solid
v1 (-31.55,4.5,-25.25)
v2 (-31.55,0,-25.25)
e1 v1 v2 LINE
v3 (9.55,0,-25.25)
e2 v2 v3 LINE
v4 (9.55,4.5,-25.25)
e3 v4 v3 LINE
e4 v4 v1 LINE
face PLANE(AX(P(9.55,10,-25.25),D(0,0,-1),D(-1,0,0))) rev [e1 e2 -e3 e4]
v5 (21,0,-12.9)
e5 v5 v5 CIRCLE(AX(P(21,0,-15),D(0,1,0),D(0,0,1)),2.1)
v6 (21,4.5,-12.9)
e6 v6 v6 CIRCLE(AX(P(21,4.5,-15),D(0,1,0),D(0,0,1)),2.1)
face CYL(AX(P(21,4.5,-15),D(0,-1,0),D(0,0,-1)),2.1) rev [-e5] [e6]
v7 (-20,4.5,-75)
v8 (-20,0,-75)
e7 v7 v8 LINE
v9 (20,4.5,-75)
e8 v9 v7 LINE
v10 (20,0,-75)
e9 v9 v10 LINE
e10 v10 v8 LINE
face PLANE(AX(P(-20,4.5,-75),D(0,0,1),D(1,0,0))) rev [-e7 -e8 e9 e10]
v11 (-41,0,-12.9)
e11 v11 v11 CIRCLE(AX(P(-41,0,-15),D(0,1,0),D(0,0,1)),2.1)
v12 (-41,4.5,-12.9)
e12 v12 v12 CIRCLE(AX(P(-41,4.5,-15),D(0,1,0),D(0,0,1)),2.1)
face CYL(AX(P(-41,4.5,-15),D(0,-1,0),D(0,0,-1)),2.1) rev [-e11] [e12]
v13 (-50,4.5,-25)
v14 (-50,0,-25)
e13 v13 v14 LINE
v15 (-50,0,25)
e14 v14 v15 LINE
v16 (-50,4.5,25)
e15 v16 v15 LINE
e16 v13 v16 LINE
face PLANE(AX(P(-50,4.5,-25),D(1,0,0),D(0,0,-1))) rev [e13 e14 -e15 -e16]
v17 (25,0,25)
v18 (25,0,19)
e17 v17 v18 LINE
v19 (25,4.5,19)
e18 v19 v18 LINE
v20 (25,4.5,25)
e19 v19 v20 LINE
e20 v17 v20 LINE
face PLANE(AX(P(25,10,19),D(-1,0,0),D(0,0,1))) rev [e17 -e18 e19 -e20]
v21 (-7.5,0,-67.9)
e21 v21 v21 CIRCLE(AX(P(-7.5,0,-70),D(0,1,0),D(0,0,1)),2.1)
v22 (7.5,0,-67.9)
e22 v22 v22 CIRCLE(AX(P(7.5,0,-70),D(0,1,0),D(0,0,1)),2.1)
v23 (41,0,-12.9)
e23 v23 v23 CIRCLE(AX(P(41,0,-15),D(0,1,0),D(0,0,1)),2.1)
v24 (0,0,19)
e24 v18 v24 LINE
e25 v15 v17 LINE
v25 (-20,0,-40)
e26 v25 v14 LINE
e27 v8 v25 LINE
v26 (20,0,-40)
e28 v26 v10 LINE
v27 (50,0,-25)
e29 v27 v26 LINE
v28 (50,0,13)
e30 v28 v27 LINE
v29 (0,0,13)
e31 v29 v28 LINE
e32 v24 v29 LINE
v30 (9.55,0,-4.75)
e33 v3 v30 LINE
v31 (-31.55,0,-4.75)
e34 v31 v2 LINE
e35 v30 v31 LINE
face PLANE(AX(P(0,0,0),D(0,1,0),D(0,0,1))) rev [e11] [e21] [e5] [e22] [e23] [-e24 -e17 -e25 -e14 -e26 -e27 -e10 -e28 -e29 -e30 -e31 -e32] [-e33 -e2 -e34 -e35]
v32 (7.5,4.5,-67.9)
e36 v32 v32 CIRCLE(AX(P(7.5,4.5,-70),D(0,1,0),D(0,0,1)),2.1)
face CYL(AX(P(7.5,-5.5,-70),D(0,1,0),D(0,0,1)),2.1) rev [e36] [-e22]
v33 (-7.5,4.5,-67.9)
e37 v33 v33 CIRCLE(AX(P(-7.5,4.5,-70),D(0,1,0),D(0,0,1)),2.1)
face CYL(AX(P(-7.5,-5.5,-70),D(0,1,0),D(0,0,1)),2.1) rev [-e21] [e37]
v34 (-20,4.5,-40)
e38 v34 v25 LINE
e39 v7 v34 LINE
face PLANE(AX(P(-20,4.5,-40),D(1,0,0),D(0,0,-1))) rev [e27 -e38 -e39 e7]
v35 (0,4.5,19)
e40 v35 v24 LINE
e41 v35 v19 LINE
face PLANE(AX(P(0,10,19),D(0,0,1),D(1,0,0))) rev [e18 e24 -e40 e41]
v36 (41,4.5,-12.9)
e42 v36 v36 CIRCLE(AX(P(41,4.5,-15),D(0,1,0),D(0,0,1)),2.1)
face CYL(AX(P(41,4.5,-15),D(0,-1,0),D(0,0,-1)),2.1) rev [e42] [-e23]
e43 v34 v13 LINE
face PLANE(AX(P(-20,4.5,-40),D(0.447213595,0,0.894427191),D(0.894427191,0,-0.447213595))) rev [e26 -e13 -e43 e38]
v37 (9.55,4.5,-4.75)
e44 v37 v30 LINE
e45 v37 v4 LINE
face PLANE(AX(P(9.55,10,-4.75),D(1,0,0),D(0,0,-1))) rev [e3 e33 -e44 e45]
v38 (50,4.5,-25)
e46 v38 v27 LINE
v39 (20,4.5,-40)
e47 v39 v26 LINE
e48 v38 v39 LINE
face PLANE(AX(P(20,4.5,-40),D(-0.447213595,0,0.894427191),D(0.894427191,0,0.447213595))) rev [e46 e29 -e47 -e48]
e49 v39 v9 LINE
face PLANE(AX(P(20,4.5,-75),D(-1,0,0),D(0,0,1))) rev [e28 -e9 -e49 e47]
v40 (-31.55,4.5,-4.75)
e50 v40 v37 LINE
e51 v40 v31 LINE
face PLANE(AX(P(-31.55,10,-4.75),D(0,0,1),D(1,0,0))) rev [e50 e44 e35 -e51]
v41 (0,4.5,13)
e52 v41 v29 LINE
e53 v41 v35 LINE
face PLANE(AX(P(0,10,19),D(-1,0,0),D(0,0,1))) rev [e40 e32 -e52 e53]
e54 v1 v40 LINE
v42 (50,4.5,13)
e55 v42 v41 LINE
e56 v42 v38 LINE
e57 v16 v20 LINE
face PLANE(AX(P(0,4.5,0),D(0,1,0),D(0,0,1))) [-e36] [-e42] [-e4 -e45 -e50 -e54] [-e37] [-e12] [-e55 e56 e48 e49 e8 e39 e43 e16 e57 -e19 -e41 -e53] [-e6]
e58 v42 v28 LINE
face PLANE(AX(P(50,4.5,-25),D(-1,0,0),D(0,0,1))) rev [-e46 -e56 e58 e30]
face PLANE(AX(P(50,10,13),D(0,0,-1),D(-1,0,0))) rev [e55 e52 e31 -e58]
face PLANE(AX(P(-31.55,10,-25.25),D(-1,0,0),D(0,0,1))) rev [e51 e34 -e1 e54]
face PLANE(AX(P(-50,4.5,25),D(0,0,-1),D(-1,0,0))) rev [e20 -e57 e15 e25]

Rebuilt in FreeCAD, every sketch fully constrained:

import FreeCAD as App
import Part
import Sketcher
from FreeCAD import Vector

doc = App.newDocument("Part")
body = doc.addObject("PartDesign::Body", "Body")

sketch1 = body.newObject("Sketcher::SketchObject", "Sketch")
sketch1.AttachmentSupport = (doc.getObject("XZ_Plane"), [""])
sketch1.MapMode = "FlatFace"
sketch1.addGeometry([
    Part.LineSegment(Vector(50, -25, 0), Vector(20, -40, 0)),
    Part.LineSegment(Vector(20, -40, 0), Vector(20, -75, 0)),
    Part.LineSegment(Vector(20, -75, 0), Vector(-20, -75, 0)),
    Part.LineSegment(Vector(-20, -75, 0), Vector(-20, -40, 0)),
    Part.LineSegment(Vector(-20, -40, 0), Vector(-50, -25, 0)),
    Part.LineSegment(Vector(-50, -25, 0), Vector(-50, 25, 0)),
    Part.LineSegment(Vector(-50, 25, 0), Vector(50, 25, 0)),
    Part.LineSegment(Vector(50, 25, 0), Vector(50, -25, 0)),
    Part.Circle(Vector(41, -15, 0), Vector(0, 0, 1), 2.1),
    Part.Circle(Vector(21, -15, 0), Vector(0, 0, 1), 2.1),
    Part.Circle(Vector(-21, -15, 0), Vector(0, 0, 1), 2.1),
    Part.Circle(Vector(-41, -15, 0), Vector(0, 0, 1), 2.1),
], False)
sketch1.addConstraint([
    Sketcher.Constraint("Coincident", 0, 2, 1, 1),
    Sketcher.Constraint("Coincident", 1, 2, 2, 1),
    Sketcher.Constraint("Coincident", 2, 2, 3, 1),
    Sketcher.Constraint("Coincident", 3, 2, 4, 1),
    Sketcher.Constraint("Coincident", 4, 2, 5, 1),
    Sketcher.Constraint("Coincident", 5, 2, 6, 1),
    Sketcher.Constraint("Coincident", 6, 2, 7, 1),
    Sketcher.Constraint("Coincident", 7, 2, 0, 1),
    Sketcher.Constraint("Vertical", 1),
    Sketcher.Constraint("Horizontal", 2),
    Sketcher.Constraint("Vertical", 3),
    Sketcher.Constraint("Vertical", 5),
    Sketcher.Constraint("Horizontal", 6),
    Sketcher.Constraint("Vertical", 7),
    Sketcher.Constraint("Equal", 8, 9),
    Sketcher.Constraint("Equal", 9, 10),
    Sketcher.Constraint("Equal", 10, 11),
    Sketcher.Constraint("Symmetric", 4, 2, 6, 2, -1, 1),
    Sketcher.Constraint("Symmetric", 9, 3, 10, 3, -2),
    Sketcher.Constraint("Symmetric", 8, 3, 11, 3, -2),
    Sketcher.Constraint("Symmetric", 0, 2, 3, 2, -2),
    Sketcher.Constraint("Horizontal", 8, 3, 9, 3),
    Sketcher.Constraint("Horizontal", 4, 2, 7, 2),
    Sketcher.Constraint("Diameter", 8, 4.2),
    Sketcher.Constraint("DistanceX", 2, 2, 2, 1, 40.0),
    Sketcher.Constraint("DistanceX", 6, 1, 6, 2, 100.0),
    Sketcher.Constraint("DistanceY", 1, 2, 1, 1, 35.0),
    Sketcher.Constraint("DistanceY", 5, 1, 5, 2, 50.0),
    Sketcher.Constraint("DistanceX", -1, 1, 8, 3, 41.0),
    Sketcher.Constraint("DistanceY", 8, 3, -1, 1, 15.0),
    Sketcher.Constraint("DistanceX", -1, 1, 9, 3, 21.0),
    Sketcher.Constraint("DistanceY", 0, 2, -1, 1, 40.0),
])
pad1 = body.newObject("PartDesign::Pad", "Pad")
pad1.Profile = sketch1
pad1.Length = 4.5
pad1.Reversed = True

sketch2 = body.newObject("Sketcher::SketchObject", "Sketch001")
sketch2.AttachmentSupport = (doc.getObject("XZ_Plane"), [""])
sketch2.MapMode = "FlatFace"
sketch2.addGeometry([
    Part.LineSegment(Vector(-31.55, -4.75, 0), Vector(-31.55, -25.25, 0)),
    Part.LineSegment(Vector(-31.55, -25.25, 0), Vector(9.55, -25.25, 0)),
    Part.LineSegment(Vector(9.55, -25.25, 0), Vector(9.55, -4.75, 0)),
    Part.LineSegment(Vector(9.55, -4.75, 0), Vector(-31.55, -4.75, 0)),
], False)
sketch2.addConstraint([
    Sketcher.Constraint("Coincident", 0, 2, 1, 1),
    Sketcher.Constraint("Coincident", 1, 2, 2, 1),
    Sketcher.Constraint("Coincident", 2, 2, 3, 1),
    Sketcher.Constraint("Coincident", 3, 2, 0, 1),
    Sketcher.Constraint("Vertical", 0),
    Sketcher.Constraint("Horizontal", 1),
    Sketcher.Constraint("Vertical", 2),
    Sketcher.Constraint("Horizontal", 3),
    Sketcher.Constraint("DistanceX", 1, 1, 1, 2, 41.1),
    Sketcher.Constraint("DistanceY", 0, 2, 0, 1, 20.5),
    Sketcher.Constraint("DistanceX", 0, 2, -1, 1, 31.55),
    Sketcher.Constraint("DistanceY", 0, 2, -1, 1, 25.25),
])
pocket1 = body.newObject("PartDesign::Pocket", "Pocket")
pocket1.Profile = sketch2
pocket1.Length = 10

sketch3 = body.newObject("Sketcher::SketchObject", "Sketch002")
sketch3.AttachmentSupport = (doc.getObject("XZ_Plane"), [""])
sketch3.MapMode = "FlatFace"
sketch3.addGeometry([
    Part.LineSegment(Vector(25, 19, 0), Vector(0, 19, 0)),
    Part.LineSegment(Vector(0, 19, 0), Vector(0, 13, 0)),
    Part.LineSegment(Vector(0, 13, 0), Vector(50, 13, 0)),
    Part.LineSegment(Vector(50, 13, 0), Vector(50, 28.725278, 0)),
    Part.LineSegment(Vector(50, 28.725278, 0), Vector(25, 28.725278, 0)),
    Part.LineSegment(Vector(25, 28.725278, 0), Vector(25, 19, 0)),
], False)
sketch3.addConstraint([
    Sketcher.Constraint("Coincident", 0, 2, 1, 1),
    Sketcher.Constraint("Coincident", 1, 2, 2, 1),
    Sketcher.Constraint("Coincident", 2, 2, 3, 1),
    Sketcher.Constraint("Coincident", 3, 2, 4, 1),
    Sketcher.Constraint("Coincident", 4, 2, 5, 1),
    Sketcher.Constraint("Coincident", 5, 2, 0, 1),
    Sketcher.Constraint("Horizontal", 0),
    Sketcher.Constraint("Vertical", 1),
    Sketcher.Constraint("Horizontal", 2),
    Sketcher.Constraint("Vertical", 3),
    Sketcher.Constraint("Horizontal", 4),
    Sketcher.Constraint("Vertical", 5),
    Sketcher.Constraint("PointOnObject", 0, 2, -2),
    Sketcher.Constraint("Equal", 0, 4),
    Sketcher.Constraint("DistanceX", 0, 2, 0, 1, 25.0),
    Sketcher.Constraint("DistanceY", 1, 2, 1, 1, 6.0),
    Sketcher.Constraint("DistanceY", -1, 1, 0, 2, 19.0),
    Sketcher.Constraint("DistanceY", 3, 1, 3, 2, 15.725278),
])
pocket2 = body.newObject("PartDesign::Pocket", "Pocket001")
pocket2.Profile = sketch3
pocket2.Length = 10

sketch4 = body.newObject("Sketcher::SketchObject", "Sketch003")
sketch4.AttachmentSupport = (doc.getObject("XZ_Plane"), [""])
sketch4.MapMode = "FlatFace"
sketch4.AttachmentOffset = App.Placement(Vector(0, 0, -4.5), App.Rotation())
sketch4.addGeometry([
    Part.Circle(Vector(7.5, -70, 0), Vector(0, 0, 1), 2.1),
    Part.Circle(Vector(-7.5, -70, 0), Vector(0, 0, 1), 2.1),
], False)
sketch4.addConstraint([
    Sketcher.Constraint("Equal", 0, 1),
    Sketcher.Constraint("Symmetric", 0, 3, 1, 3, -2),
    Sketcher.Constraint("Diameter", 0, 4.2),
    Sketcher.Constraint("DistanceY", 0, 3, -1, 1, 70.0),
    Sketcher.Constraint("DistanceX", 1, 3, 0, 3, 15.0),
])
pocket3 = body.newObject("PartDesign::Pocket", "Pocket002")
pocket3.Profile = sketch4
pocket3.Length = 10
pocket3.Reversed = True

doc.recompute()
